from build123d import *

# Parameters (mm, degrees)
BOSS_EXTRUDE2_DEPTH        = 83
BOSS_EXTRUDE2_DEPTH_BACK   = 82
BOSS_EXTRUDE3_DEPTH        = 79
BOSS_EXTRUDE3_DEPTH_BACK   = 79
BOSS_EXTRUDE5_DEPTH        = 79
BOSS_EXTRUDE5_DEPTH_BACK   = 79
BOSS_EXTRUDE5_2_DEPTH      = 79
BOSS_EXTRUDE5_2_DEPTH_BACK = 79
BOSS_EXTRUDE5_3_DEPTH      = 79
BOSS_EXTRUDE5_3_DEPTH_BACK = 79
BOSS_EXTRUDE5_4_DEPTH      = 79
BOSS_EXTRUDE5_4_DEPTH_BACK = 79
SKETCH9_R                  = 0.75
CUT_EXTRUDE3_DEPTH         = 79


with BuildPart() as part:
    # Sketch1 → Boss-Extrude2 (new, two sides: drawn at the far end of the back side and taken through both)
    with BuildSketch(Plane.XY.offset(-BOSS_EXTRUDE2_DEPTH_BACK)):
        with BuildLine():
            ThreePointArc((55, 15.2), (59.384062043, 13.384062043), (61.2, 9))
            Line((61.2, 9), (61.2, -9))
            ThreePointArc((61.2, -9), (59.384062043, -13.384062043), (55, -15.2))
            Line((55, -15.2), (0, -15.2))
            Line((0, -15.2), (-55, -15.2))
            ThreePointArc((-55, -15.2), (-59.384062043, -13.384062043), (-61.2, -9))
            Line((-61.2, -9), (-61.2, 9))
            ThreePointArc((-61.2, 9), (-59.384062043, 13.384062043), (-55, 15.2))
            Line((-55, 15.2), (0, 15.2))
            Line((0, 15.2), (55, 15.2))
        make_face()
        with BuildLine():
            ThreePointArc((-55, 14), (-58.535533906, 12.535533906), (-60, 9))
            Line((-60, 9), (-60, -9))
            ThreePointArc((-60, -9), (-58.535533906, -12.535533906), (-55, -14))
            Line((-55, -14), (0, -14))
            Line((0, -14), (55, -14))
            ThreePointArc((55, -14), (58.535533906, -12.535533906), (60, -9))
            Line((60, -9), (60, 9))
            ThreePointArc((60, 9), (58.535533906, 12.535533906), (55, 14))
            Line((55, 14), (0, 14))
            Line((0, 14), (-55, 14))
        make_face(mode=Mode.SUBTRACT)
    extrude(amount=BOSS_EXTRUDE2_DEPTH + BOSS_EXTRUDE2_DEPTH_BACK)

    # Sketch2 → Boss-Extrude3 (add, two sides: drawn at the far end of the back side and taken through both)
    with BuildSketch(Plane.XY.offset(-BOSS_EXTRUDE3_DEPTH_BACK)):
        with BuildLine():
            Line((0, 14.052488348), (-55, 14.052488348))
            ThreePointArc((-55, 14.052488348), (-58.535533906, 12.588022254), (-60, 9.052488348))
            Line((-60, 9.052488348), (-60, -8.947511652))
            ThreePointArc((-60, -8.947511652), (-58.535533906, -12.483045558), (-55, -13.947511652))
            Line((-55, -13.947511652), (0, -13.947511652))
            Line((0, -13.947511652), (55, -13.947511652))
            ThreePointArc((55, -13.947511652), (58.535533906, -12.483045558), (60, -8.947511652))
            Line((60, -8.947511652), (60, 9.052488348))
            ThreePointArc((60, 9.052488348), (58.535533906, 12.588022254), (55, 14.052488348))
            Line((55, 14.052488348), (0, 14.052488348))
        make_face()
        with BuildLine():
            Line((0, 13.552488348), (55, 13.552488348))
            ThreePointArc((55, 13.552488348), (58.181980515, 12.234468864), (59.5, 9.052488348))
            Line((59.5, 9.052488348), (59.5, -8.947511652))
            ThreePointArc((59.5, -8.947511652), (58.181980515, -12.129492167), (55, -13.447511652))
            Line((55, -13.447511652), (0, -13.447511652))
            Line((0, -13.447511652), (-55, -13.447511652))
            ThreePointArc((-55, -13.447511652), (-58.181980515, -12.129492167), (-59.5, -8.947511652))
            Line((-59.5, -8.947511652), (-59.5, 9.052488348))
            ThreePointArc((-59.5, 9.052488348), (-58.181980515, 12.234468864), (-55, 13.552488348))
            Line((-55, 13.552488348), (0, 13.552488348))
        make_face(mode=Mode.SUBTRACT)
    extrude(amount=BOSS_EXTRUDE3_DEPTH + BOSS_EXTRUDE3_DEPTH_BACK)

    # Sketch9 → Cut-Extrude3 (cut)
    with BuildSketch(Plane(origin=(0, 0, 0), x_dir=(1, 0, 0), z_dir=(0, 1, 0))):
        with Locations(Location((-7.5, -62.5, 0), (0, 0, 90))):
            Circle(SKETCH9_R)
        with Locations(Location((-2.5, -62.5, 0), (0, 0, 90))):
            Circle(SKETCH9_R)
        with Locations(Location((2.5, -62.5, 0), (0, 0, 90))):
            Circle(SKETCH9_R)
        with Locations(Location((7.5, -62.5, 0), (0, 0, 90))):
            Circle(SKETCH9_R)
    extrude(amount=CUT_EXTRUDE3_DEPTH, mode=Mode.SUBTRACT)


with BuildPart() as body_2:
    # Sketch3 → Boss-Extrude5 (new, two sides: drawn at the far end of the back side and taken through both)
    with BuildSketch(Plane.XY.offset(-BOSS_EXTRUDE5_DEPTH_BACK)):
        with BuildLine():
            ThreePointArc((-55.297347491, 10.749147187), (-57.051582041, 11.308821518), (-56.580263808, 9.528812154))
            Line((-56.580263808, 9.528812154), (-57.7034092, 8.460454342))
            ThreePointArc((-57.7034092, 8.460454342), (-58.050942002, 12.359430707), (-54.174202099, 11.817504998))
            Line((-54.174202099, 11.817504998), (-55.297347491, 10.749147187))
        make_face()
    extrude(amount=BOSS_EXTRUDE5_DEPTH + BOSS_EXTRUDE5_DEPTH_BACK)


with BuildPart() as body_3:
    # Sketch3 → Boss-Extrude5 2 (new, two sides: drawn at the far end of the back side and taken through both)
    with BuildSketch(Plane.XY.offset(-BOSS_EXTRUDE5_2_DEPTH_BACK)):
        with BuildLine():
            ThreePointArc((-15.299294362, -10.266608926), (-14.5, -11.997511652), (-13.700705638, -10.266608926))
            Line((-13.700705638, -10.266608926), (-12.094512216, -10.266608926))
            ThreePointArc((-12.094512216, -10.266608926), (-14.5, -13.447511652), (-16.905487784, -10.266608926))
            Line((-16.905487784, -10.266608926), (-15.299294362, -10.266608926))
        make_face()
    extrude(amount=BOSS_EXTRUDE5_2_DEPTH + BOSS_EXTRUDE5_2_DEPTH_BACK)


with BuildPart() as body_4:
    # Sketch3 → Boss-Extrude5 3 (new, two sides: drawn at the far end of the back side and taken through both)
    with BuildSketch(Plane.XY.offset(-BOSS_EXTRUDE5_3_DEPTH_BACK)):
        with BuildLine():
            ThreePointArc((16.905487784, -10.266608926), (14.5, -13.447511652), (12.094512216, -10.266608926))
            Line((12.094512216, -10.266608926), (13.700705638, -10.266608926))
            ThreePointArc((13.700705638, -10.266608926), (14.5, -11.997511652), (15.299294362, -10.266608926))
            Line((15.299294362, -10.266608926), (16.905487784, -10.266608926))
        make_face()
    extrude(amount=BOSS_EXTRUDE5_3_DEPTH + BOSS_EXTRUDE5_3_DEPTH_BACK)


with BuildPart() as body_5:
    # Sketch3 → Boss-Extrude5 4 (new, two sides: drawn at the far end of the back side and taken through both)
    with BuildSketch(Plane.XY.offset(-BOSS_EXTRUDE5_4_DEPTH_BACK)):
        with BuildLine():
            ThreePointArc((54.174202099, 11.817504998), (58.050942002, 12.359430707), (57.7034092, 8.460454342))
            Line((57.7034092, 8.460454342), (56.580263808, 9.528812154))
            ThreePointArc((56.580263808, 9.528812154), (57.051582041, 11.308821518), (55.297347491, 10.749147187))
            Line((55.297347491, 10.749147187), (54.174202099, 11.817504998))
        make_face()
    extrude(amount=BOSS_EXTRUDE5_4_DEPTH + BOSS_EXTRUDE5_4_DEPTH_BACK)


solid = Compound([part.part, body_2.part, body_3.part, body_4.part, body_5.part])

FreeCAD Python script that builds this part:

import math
import FreeCAD as App
import Part
import Sketcher
from FreeCAD import Vector
Q = App.Units.Quantity

doc = App.newDocument("Part")
body = doc.addObject("PartDesign::Body", "Body")

# Sketch on XY plane
sketch1 = doc.addObject("Sketcher::SketchObject", "Sketch")
body.addObject(sketch1)
sketch1.AttachmentSupport = (doc.XY_Plane, [""])
sketch1.MapMode = "FlatFace"
sketch1.addGeometry([
    Part.ArcOfCircle(Part.Circle(Vector(55, 9, 0), Vector(0, 0, 1), 6), math.radians(0), math.radians(90)),  # 0
    Part.LineSegment(Vector(55, 15, 0), Vector(-55, 15, 0)),  # 1
    Part.ArcOfCircle(Part.Circle(Vector(-55, 9, 0), Vector(0, 0, 1), 6), math.radians(90), math.radians(180)),  # 2
    Part.LineSegment(Vector(-61, 9, 0), Vector(-61, -9, 0)),  # 3
    Part.ArcOfCircle(Part.Circle(Vector(-55, -9, 0), Vector(0, 0, 1), 6), math.radians(-180), math.radians(-90)),  # 4
    Part.LineSegment(Vector(-55, -15, 0), Vector(55, -15, 0)),  # 5
    Part.ArcOfCircle(Part.Circle(Vector(55, -9, 0), Vector(0, 0, 1), 6), math.radians(-90), math.radians(0)),  # 6
    Part.LineSegment(Vector(61, -9, 0), Vector(61, 9, 0)),  # 7
    Part.LineSegment(Vector(-55, 14, 0), Vector(55, 14, 0)),  # 8
    Part.ArcOfCircle(Part.Circle(Vector(55, 9, 0), Vector(0, 0, 1), 5), math.radians(0), math.radians(90)),  # 9
    Part.LineSegment(Vector(60, 9, 0), Vector(60, -9, 0)),  # 10
    Part.ArcOfCircle(Part.Circle(Vector(55, -9, 0), Vector(0, 0, 1), 5), math.radians(-90), math.radians(0)),  # 11
    Part.LineSegment(Vector(55, -14, 0), Vector(-55, -14, 0)),  # 12
    Part.ArcOfCircle(Part.Circle(Vector(-55, -9, 0), Vector(0, 0, 1), 5), math.radians(180), math.radians(270)),  # 13
    Part.LineSegment(Vector(-60, -9, 0), Vector(-60, 9, 0)),  # 14
    Part.ArcOfCircle(Part.Circle(Vector(-55, 9, 0), Vector(0, 0, 1), 5), math.radians(90), math.radians(180)),  # 15
], False)
sketch1.addConstraint([
    Sketcher.Constraint("Tangent", 0, 2, 1, 1),
    Sketcher.Constraint("Tangent", 1, 2, 2, 1),
    Sketcher.Constraint("Tangent", 2, 2, 3, 1),
    Sketcher.Constraint("Tangent", 3, 2, 4, 1),
    Sketcher.Constraint("Tangent", 4, 2, 5, 1),
    Sketcher.Constraint("Tangent", 5, 2, 6, 1),
    Sketcher.Constraint("Tangent", 6, 2, 7, 1),
    Sketcher.Constraint("Tangent", 7, 2, 0, 1),
    Sketcher.Constraint("Tangent", 8, 2, 9, 2),
    Sketcher.Constraint("Tangent", 9, 1, 10, 1),
    Sketcher.Constraint("Tangent", 10, 2, 11, 2),
    Sketcher.Constraint("Tangent", 11, 1, 12, 1),
    Sketcher.Constraint("Tangent", 12, 2, 13, 2),
    Sketcher.Constraint("Tangent", 13, 1, 14, 1),
    Sketcher.Constraint("Tangent", 14, 2, 15, 2),
    Sketcher.Constraint("Tangent", 15, 1, 8, 1),
    Sketcher.Constraint("Horizontal", 1),
    Sketcher.Constraint("Vertical", 3),
    Sketcher.Constraint("Horizontal", 5),
    Sketcher.Constraint("Vertical", 7),
    Sketcher.Constraint("Horizontal", 8),
    Sketcher.Constraint("Vertical", 10),
    Sketcher.Constraint("Horizontal", 12),
    Sketcher.Constraint("Vertical", 14),
    Sketcher.Constraint("Coincident", 9, 3, 0, 3),
    Sketcher.Constraint("Coincident", 11, 3, 6, 3),
    Sketcher.Constraint("Coincident", 13, 3, 4, 3),
    Sketcher.Constraint("Equal", 0, 2),
    Sketcher.Constraint("Equal", 2, 4),
    Sketcher.Constraint("Equal", 4, 6),
    Sketcher.Constraint("Equal", 13, 15),
    Sketcher.Constraint("Symmetric", 0, 3, 4, 3, -1, 1),
    Sketcher.Constraint("Radius", 9, Q("5 mm")),
    Sketcher.Constraint("Radius", 0, Q("6.2 mm")),
    Sketcher.Constraint("DistanceX", 1, 2, 1, 1, Q("110 mm")),
    Sketcher.Constraint("DistanceY", 3, 2, 3, 1, Q("18 mm")),
])
pad1 = doc.addObject("PartDesign::Pad", "Pad")
body.addObject(pad1)
pad1.Profile = sketch1
pad1.Type = "TwoLengths"
pad1.Length = 83
pad1.Length2 = 82

# Sketch on XY plane
sketch2 = doc.addObject("Sketcher::SketchObject", "Sketch001")
body.addObject(sketch2)
sketch2.AttachmentSupport = (doc.XY_Plane, [""])
sketch2.MapMode = "FlatFace"
sketch2.addGeometry([
    Part.ArcOfCircle(Part.Circle(Vector(-55, 9.1, 0), Vector(0, 0, 1), 5), math.radians(90), math.radians(180)),  # 0
    Part.LineSegment(Vector(-60, 9.1, 0), Vector(-60, -8.9, 0)),  # 1
    Part.ArcOfCircle(Part.Circle(Vector(-55, -8.9, 0), Vector(0, 0, 1), 5), math.radians(180), math.radians(270)),  # 2
    Part.LineSegment(Vector(-55, -13.9, 0), Vector(55, -13.9, 0)),  # 3
    Part.ArcOfCircle(Part.Circle(Vector(55, -8.9, 0), Vector(0, 0, 1), 5), math.radians(-90), math.radians(0)),  # 4
    Part.LineSegment(Vector(60, -8.9, 0), Vector(60, 9.1, 0)),  # 5
    Part.ArcOfCircle(Part.Circle(Vector(55, 9.1, 0), Vector(0, 0, 1), 5), math.radians(0), math.radians(90)),  # 6
    Part.LineSegment(Vector(55, 14.1, 0), Vector(-55, 14.1, 0)),  # 7
    Part.LineSegment(Vector(-55, 13.6, 0), Vector(55, 13.6, 0)),  # 8
    Part.ArcOfCircle(Part.Circle(Vector(55, 9.1, 0), Vector(0, 0, 1), 4.5), math.radians(0), math.radians(90)),  # 9
    Part.LineSegment(Vector(59.5, 9.1, 0), Vector(59.5, -8.9, 0)),  # 10
    Part.ArcOfCircle(Part.Circle(Vector(55, -8.9, 0), Vector(0, 0, 1), 4.5), math.radians(-90), math.radians(0)),  # 11
    Part.LineSegment(Vector(55, -13.4, 0), Vector(-55, -13.4, 0)),  # 12
    Part.ArcOfCircle(Part.Circle(Vector(-55, -8.9, 0), Vector(0, 0, 1), 4.5), math.radians(-180), math.radians(-90)),  # 13
    Part.LineSegment(Vector(-59.5, -8.9, 0), Vector(-59.5, 9.1, 0)),  # 14
    Part.ArcOfCircle(Part.Circle(Vector(-55, 9.1, 0), Vector(0, 0, 1), 4.5), math.radians(90), math.radians(180)),  # 15
], False)
sketch2.addConstraint([
    Sketcher.Constraint("Tangent", 0, 2, 1, 1),
    Sketcher.Constraint("Tangent", 1, 2, 2, 1),
    Sketcher.Constraint("Tangent", 2, 2, 3, 1),
    Sketcher.Constraint("Tangent", 3, 2, 4, 1),
    Sketcher.Constraint("Tangent", 4, 2, 5, 1),
    Sketcher.Constraint("Tangent", 5, 2, 6, 1),
    Sketcher.Constraint("Tangent", 6, 2, 7, 1),
    Sketcher.Constraint("Tangent", 7, 2, 0, 1),
    Sketcher.Constraint("Tangent", 8, 2, 9, 2),
    Sketcher.Constraint("Tangent", 9, 1, 10, 1),
    Sketcher.Constraint("Tangent", 10, 2, 11, 2),
    Sketcher.Constraint("Tangent", 11, 1, 12, 1),
    Sketcher.Constraint("Tangent", 12, 2, 13, 2),
    Sketcher.Constraint("Tangent", 13, 1, 14, 1),
    Sketcher.Constraint("Tangent", 14, 2, 15, 2),
    Sketcher.Constraint("Tangent", 15, 1, 8, 1),
    Sketcher.Constraint("Vertical", 1),
    Sketcher.Constraint("Horizontal", 3),
    Sketcher.Constraint("Vertical", 5),
    Sketcher.Constraint("Horizontal", 7),
    Sketcher.Constraint("Horizontal", 8),
    Sketcher.Constraint("Vertical", 10),
    Sketcher.Constraint("Horizontal", 12),
    Sketcher.Constraint("Vertical", 14),
    Sketcher.Constraint("Coincident", 9, 3, 6, 3),
    Sketcher.Constraint("Coincident", 11, 3, 4, 3),
    Sketcher.Constraint("Coincident", 13, 3, 2, 3),
    Sketcher.Constraint("Equal", 0, 2),
    Sketcher.Constraint("Equal", 2, 4),
    Sketcher.Constraint("Equal", 4, 6),
    Sketcher.Constraint("Equal", 13, 15),
    Sketcher.Constraint("Radius", 0, Q("5 mm")),
    Sketcher.Constraint("Radius", 9, Q("4.5 mm")),
    Sketcher.Constraint("DistanceX", 3, 1, 3, 2, Q("110 mm")),
    Sketcher.Constraint("DistanceY", 1, 2, 1, 1, Q("18 mm")),
    Sketcher.Constraint("DistanceX", 0, 3, -1, 1, Q("55 mm")),
    Sketcher.Constraint("DistanceY", -1, 1, 0, 3, Q("9.052488 mm")),
])
pad2 = doc.addObject("PartDesign::Pad", "Pad001")
body.addObject(pad2)
pad2.Profile = sketch2
pad2.Type = "TwoLengths"
pad2.Length = 79
pad2.Length2 = 79

# Sketch on XZ plane
sketch3 = doc.addObject("Sketcher::SketchObject", "Sketch002")
body.addObject(sketch3)
sketch3.AttachmentSupport = (doc.XZ_Plane, [""])
sketch3.MapMode = "FlatFace"
sketch3.addGeometry([
    Part.Circle(Vector(-7.5, 62.5, 0), Vector(0, 0, 1), 0.8),
    Part.Circle(Vector(-2.5, 62.5, 0), Vector(0, 0, 1), 0.8),
    Part.Circle(Vector(2.5, 62.5, 0), Vector(0, 0, 1), 0.8),
    Part.Circle(Vector(7.5, 62.5, 0), Vector(0, 0, 1), 0.8),
], False)
sketch3.addConstraint([
    Sketcher.Constraint("Equal", 0, 1),
    Sketcher.Constraint("Equal", 1, 2),
    Sketcher.Constraint("Equal", 2, 3),
    Sketcher.Constraint("Symmetric", 1, 3, 2, 3, -2),
    Sketcher.Constraint("Symmetric", 0, 3, 3, 3, -2),
    Sketcher.Constraint("Horizontal", 0, 3, 1, 3),
    Sketcher.Constraint("Diameter", 0, Q("1.5 mm")),
    Sketcher.Constraint("DistanceX", 0, 3, 1, 3, Q("5 mm")),
    Sketcher.Constraint("DistanceX", 1, 3, 2, 3, Q("5 mm")),
    Sketcher.Constraint("DistanceY", -1, 1, 0, 3, Q("62.5 mm")),
])
pocket1 = doc.addObject("PartDesign::Pocket", "Pocket")
body.addObject(pocket1)
pocket1.Profile = sketch3
pocket1.Length = 79
body2 = doc.addObject("PartDesign::Body", "Body001")

# Sketch on XY plane
sketch4 = doc.addObject("Sketcher::SketchObject", "Sketch003")
body2.addObject(sketch4)
sketch4.AttachmentSupport = (doc.getObject("XY_Plane001"), [""])
sketch4.MapMode = "FlatFace"
sketch4.addGeometry([
    Part.ArcOfCircle(Part.Circle(Vector(-56.3, 10.5, 0), Vector(0, 0, 1), 1.1), math.radians(11), math.radians(256)),
    Part.LineSegment(Vector(-55.3, 10.7, 0), Vector(-54.2, 11.8, 0)),
    Part.ArcOfCircle(Part.Circle(Vector(-56.3, 10.5, 0), Vector(0, 0, 1), 2.5), math.radians(31), math.radians(237)),
    Part.LineSegment(Vector(-57.7, 8.5, 0), Vector(-56.6, 9.5, 0)),
], False)
sketch4.addConstraint([
    Sketcher.Constraint("Coincident", 0, 1, 1, 1),
    Sketcher.Constraint("Coincident", 1, 2, 2, 1),
    Sketcher.Constraint("Coincident", 2, 2, 3, 1),
    Sketcher.Constraint("Coincident", 3, 2, 0, 2),
    Sketcher.Constraint("Coincident", 2, 3, 0, 3),
    Sketcher.Constraint("Parallel", 1, 3),
    Sketcher.Constraint("Equal", 1, 3),
    Sketcher.Constraint("Radius", 2, Q("2.5 mm")),
    Sketcher.Constraint("Radius", 0, Q("1.05 mm")),
    Sketcher.Constraint("DistanceX", 2, 2, 0, 3, Q("1.375502 mm")),
    Sketcher.Constraint("Distance", 1, Q("1.550111 mm")),
    Sketcher.Constraint("DistanceX", 2, 2, -1, 1, Q("57.703409 mm")),
    Sketcher.Constraint("DistanceY", -1, 1, 0, 3, Q("10.548036 mm")),
])
pad3 = doc.addObject("PartDesign::Pad", "Pad002")
body2.addObject(pad3)
pad3.Profile = sketch4
pad3.Type = "TwoLengths"
pad3.Length = 79
pad3.Length2 = 79
body3 = doc.addObject("PartDesign::Body", "Body002")

# Sketch on XY plane
sketch5 = doc.addObject("Sketcher::SketchObject", "Sketch004")
body3.addObject(sketch5)
sketch5.AttachmentSupport = (doc.getObject("XY_Plane002"), [""])
sketch5.MapMode = "FlatFace"
sketch5.addGeometry([
    Part.ArcOfCircle(Part.Circle(Vector(-14.5, -10.9, 0), Vector(0, 0, 1), 1.1), math.radians(140), math.radians(400)),
    Part.LineSegment(Vector(-15.3, -10.3, 0), Vector(-16.9, -10.3, 0)),
    Part.ArcOfCircle(Part.Circle(Vector(-14.5, -10.9, 0), Vector(0, 0, 1), 2.5), math.radians(164), math.radians(376)),
    Part.LineSegment(Vector(-12.1, -10.3, 0), Vector(-13.7, -10.3, 0)),
], False)
sketch5.addConstraint([
    Sketcher.Constraint("Coincident", 0, 1, 1, 1),
    Sketcher.Constraint("Coincident", 1, 2, 2, 1),
    Sketcher.Constraint("Coincident", 2, 2, 3, 1),
    Sketcher.Constraint("Coincident", 3, 2, 0, 2),
    Sketcher.Constraint("Horizontal", 1),
    Sketcher.Constraint("Horizontal", 3),
    Sketcher.Constraint("Coincident", 2, 3, 0, 3),
    Sketcher.Constraint("Horizontal", 1, 2, 2, 2),
    Sketcher.Constraint("Radius", 2, Q("2.5 mm")),
    Sketcher.Constraint("Radius", 0, Q("1.05 mm")),
    Sketcher.Constraint("DistanceX", 0, 3, -1, 1, Q("14.5 mm")),
    Sketcher.Constraint("DistanceX", 1, 2, 1, 1, Q("1.606193 mm")),
    Sketcher.Constraint("DistanceY", 0, 3, -1, 1, Q("10.947512 mm")),
])
pad4 = doc.addObject("PartDesign::Pad", "Pad003")
body3.addObject(pad4)
pad4.Profile = sketch5
pad4.Type = "TwoLengths"
pad4.Length = 79
pad4.Length2 = 79
body4 = doc.addObject("PartDesign::Body", "Body003")

# Sketch on XY plane
sketch6 = doc.addObject("Sketcher::SketchObject", "Sketch005")
body4.addObject(sketch6)
sketch6.AttachmentSupport = (doc.getObject("XY_Plane003"), [""])
sketch6.MapMode = "FlatFace"
sketch6.addGeometry([
    Part.ArcOfCircle(Part.Circle(Vector(14.5, -10.9, 0), Vector(0, 0, 1), 2.5), math.radians(164), math.radians(376)),
    Part.LineSegment(Vector(16.9, -10.3, 0), Vector(15.3, -10.3, 0)),
    Part.ArcOfCircle(Part.Circle(Vector(14.5, -10.9, 0), Vector(0, 0, 1), 1.1), math.radians(140), math.radians(400)),
    Part.LineSegment(Vector(13.7, -10.3, 0), Vector(12.1, -10.3, 0)),
], False)
sketch6.addConstraint([
    Sketcher.Constraint("Coincident", 0, 2, 1, 1),
    Sketcher.Constraint("Coincident", 1, 2, 2, 2),
    Sketcher.Constraint("Coincident", 2, 1, 3, 1),
    Sketcher.Constraint("Coincident", 3, 2, 0, 1),
    Sketcher.Constraint("Horizontal", 1),
    Sketcher.Constraint("Horizontal", 3),
    Sketcher.Constraint("Coincident", 2, 3, 0, 3),
    Sketcher.Constraint("Horizontal", 1, 2, 2, 1),
    Sketcher.Constraint("Radius", 0, Q("2.5 mm")),
    Sketcher.Constraint("Radius", 2, Q("1.05 mm")),
    Sketcher.Constraint("DistanceX", -1, 1, 0, 3, Q("14.5 mm")),
    Sketcher.Constraint("DistanceX", 1, 2, 1, 1, Q("1.606193 mm")),
    Sketcher.Constraint("DistanceY", 0, 3, -1, 1, Q("10.947512 mm")),
])
pad5 = doc.addObject("PartDesign::Pad", "Pad004")
body4.addObject(pad5)
pad5.Profile = sketch6
pad5.Type = "TwoLengths"
pad5.Length = 79
pad5.Length2 = 79
body5 = doc.addObject("PartDesign::Body", "Body004")

# Sketch on XY plane
sketch7 = doc.addObject("Sketcher::SketchObject", "Sketch006")
body5.addObject(sketch7)
sketch7.AttachmentSupport = (doc.getObject("XY_Plane004"), [""])
sketch7.MapMode = "FlatFace"
sketch7.addGeometry([
    Part.ArcOfCircle(Part.Circle(Vector(56.3, 10.5, 0), Vector(0, 0, 1), 2.5), math.radians(-57), math.radians(149)),
    Part.LineSegment(Vector(54.2, 11.8, 0), Vector(55.3, 10.7, 0)),
    Part.ArcOfCircle(Part.Circle(Vector(56.3, 10.5, 0), Vector(0, 0, 1), 1.1), math.radians(-76), math.radians(169)),
    Part.LineSegment(Vector(56.6, 9.5, 0), Vector(57.7, 8.5, 0)),
], False)
sketch7.addConstraint([
    Sketcher.Constraint("Coincident", 0, 2, 1, 1),
    Sketcher.Constraint("Coincident", 1, 2, 2, 2),
    Sketcher.Constraint("Coincident", 2, 1, 3, 1),
    Sketcher.Constraint("Coincident", 3, 2, 0, 1),
    Sketcher.Constraint("Coincident", 2, 3, 0, 3),
    Sketcher.Constraint("Parallel", 1, 3),
    Sketcher.Constraint("Equal", 1, 3),
    Sketcher.Constraint("Radius", 0, Q("2.5 mm")),
    Sketcher.Constraint("Radius", 2, Q("1.05 mm")),
    Sketcher.Constraint("DistanceX", 0, 3, 3, 2, Q("1.375502 mm")),
    Sketcher.Constraint("Distance", 1, Q("1.550111 mm")),
    Sketcher.Constraint("DistanceX", -1, 1, 3, 2, Q("57.703409 mm")),
    Sketcher.Constraint("DistanceY", -1, 1, 0, 3, Q("10.548036 mm")),
])
pad6 = doc.addObject("PartDesign::Pad", "Pad005")
body5.addObject(pad6)
pad6.Profile = sketch7
pad6.Type = "TwoLengths"
pad6.Length = 79
pad6.Length2 = 79

doc.recompute()
